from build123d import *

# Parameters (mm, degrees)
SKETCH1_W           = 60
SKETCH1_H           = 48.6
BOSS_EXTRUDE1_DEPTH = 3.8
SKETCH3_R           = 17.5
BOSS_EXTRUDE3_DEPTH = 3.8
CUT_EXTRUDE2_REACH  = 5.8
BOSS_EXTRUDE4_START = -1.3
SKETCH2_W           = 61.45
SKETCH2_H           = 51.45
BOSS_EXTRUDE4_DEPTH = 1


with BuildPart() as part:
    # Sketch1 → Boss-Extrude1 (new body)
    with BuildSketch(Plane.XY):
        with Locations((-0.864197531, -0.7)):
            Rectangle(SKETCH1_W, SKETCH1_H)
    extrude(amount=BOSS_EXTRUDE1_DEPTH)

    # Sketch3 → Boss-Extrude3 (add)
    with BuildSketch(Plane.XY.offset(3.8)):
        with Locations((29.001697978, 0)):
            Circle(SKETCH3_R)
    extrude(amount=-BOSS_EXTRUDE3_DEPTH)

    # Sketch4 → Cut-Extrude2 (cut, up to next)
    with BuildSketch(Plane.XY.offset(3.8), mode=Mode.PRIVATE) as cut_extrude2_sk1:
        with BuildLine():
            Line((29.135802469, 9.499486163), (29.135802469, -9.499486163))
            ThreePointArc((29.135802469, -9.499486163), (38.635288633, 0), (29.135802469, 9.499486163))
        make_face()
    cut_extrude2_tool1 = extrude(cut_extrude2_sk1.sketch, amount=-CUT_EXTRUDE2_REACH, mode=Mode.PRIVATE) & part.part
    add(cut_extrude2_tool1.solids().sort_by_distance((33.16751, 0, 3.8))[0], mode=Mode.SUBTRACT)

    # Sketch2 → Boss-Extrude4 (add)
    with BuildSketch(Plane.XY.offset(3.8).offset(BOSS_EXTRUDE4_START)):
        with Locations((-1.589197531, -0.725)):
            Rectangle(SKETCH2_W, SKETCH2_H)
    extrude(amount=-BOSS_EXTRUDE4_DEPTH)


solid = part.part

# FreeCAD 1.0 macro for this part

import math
import FreeCAD as App
import Part
import Sketcher
from FreeCAD import Vector


def add_polygon(sketch, points):
    """Adds a closed chain of lines whose ends are joined by coincident constraints."""
    first, n = sketch.GeometryCount, len(points)
    for a, b in zip(points, points[1:] + points[:1]):
        sketch.addGeometry(Part.LineSegment(App.Vector(*a, 0), App.Vector(*b, 0)), False)
    for i in range(n):
        sketch.addConstraint(Sketcher.Constraint("Coincident", first + i, 2, first + (i + 1) % n, 1))

doc = App.newDocument("Part")
params = doc.addObject("Spreadsheet::Sheet", "Params")
for row, (alias, value) in enumerate([
    ("sketch1_width", "60 mm"),
    ("sketch1_height", "48.6 mm"),
    ("pad1_length", "3.8 mm"),
    ("sketch2_diameter", "35 mm"),
    ("pad2_length", "3.8 mm"),
    ("sketch4_width", "61.45 mm"),
    ("sketch4_height", "51.45 mm"),
    ("pad3_length", "1 mm"),
], start=1):
    params.set(f"A{row}", alias)
    params.set(f"B{row}", "=" + value)
    params.setAlias(f"B{row}", alias)

body = doc.addObject("PartDesign::Body", "Body")

sketch1 = body.newObject("Sketcher::SketchObject", "Sketch")
sketch1.AttachmentSupport = (doc.getObject("XY_Plane"), [""])
sketch1.MapMode = "FlatFace"
add_polygon(sketch1, [(-31, 24), (-31, -25), (29, -25), (29, 24)])
sketch1.addConstraint([
    Sketcher.Constraint("Vertical", 0),
    Sketcher.Constraint("Horizontal", 1),
    Sketcher.Constraint("Vertical", 2),
    Sketcher.Constraint("Horizontal", 3),
    Sketcher.Constraint("DistanceX", 1, 1, 1, 2, 60.0),
    Sketcher.Constraint("DistanceY", 0, 2, 0, 1, 48.6),
    Sketcher.Constraint("DistanceY", 0, 2, -1, 1, 25.0),
    Sketcher.Constraint("DistanceX", 0, 2, -1, 1, 30.864198),
])
sketch1.setExpression("Constraints[8]", "Params.sketch1_width")
sketch1.setExpression("Constraints[9]", "Params.sketch1_height")
pad1 = body.newObject("PartDesign::Pad", "Pad")
pad1.Profile = sketch1
pad1.setExpression("Length", "Params.pad1_length")

sketch2 = body.newObject("Sketcher::SketchObject", "Sketch001")
sketch2.AttachmentSupport = (doc.getObject("XY_Plane"), [""])
sketch2.MapMode = "FlatFace"
sketch2.AttachmentOffset = App.Placement(Vector(0, 0, 3.8), App.Rotation())
sketch2.addGeometry(Part.Circle(Vector(29, 0, 0), Vector(0, 0, 1), 18), False)
sketch2.addConstraint([
    Sketcher.Constraint("PointOnObject", 0, 3, -1),
    Sketcher.Constraint("Diameter", 0, 35.0),
    Sketcher.Constraint("DistanceX", -1, 1, 0, 3, 29.001698),
])
sketch2.setExpression("Constraints[1]", "Params.sketch2_diameter")
pad2 = body.newObject("PartDesign::Pad", "Pad001")
pad2.Profile = sketch2
pad2.setExpression("Length", "Params.pad2_length")
pad2.Reversed = True

sketch3 = body.newObject("Sketcher::SketchObject", "Sketch002")
sketch3.AttachmentSupport = (doc.getObject("XY_Plane"), [""])
sketch3.MapMode = "FlatFace"
sketch3.AttachmentOffset = App.Placement(Vector(0, 0, 3.8), App.Rotation())
sketch3.addGeometry([
    Part.LineSegment(Vector(29, 9, 0), Vector(29, -9, 0)),
    Part.ArcOfCircle(Part.Circle(Vector(29, 0, 0), Vector(0, 0, 1), 9), math.radians(-90), math.radians(90)),
], False)
sketch3.addConstraint([
    Sketcher.Constraint("Coincident", 0, 1, 1, 2),
    Sketcher.Constraint("Coincident", 1, 1, 0, 2),
    Sketcher.Constraint("Vertical", 0),
    Sketcher.Constraint("PointOnObject", 1, 3, -1),
    Sketcher.Constraint("Vertical", 1, 3, 0, 1),
    Sketcher.Constraint("Radius", 1, 9.499486),
    Sketcher.Constraint("DistanceX", -1, 1, 1, 3, 29.135802),
])
pocket1 = body.newObject("PartDesign::Pocket", "Pocket")
pocket1.Profile = sketch3
pocket1.Type = "UpToFirst"

sketch4 = body.newObject("Sketcher::SketchObject", "Sketch003")
sketch4.AttachmentSupport = (doc.getObject("XY_Plane"), [""])
sketch4.MapMode = "FlatFace"
sketch4.AttachmentOffset = App.Placement(Vector(0, 0, 2.5), App.Rotation())
add_polygon(sketch4, [(-32, 25), (-32, -26), (29, -26), (29, 25)])
sketch4.addConstraint([
    Sketcher.Constraint("Vertical", 0),
    Sketcher.Constraint("Horizontal", 1),
    Sketcher.Constraint("Vertical", 2),
    Sketcher.Constraint("Horizontal", 3),
    Sketcher.Constraint("DistanceY", -1, 1, 2, 2, 25.0),
    Sketcher.Constraint("DistanceX", 1, 1, 1, 2, 61.45),
    Sketcher.Constraint("DistanceY", 0, 2, 0, 1, 51.45),
    Sketcher.Constraint("DistanceX", 0, 2, -1, 1, 32.314198),
])
sketch4.setExpression("Constraints[9]", "Params.sketch4_width")
sketch4.setExpression("Constraints[10]", "Params.sketch4_height")
pad3 = body.newObject("PartDesign::Pad", "Pad002")
pad3.Profile = sketch4
pad3.setExpression("Length", "Params.pad3_length")
pad3.Reversed = True

doc.recompute()
